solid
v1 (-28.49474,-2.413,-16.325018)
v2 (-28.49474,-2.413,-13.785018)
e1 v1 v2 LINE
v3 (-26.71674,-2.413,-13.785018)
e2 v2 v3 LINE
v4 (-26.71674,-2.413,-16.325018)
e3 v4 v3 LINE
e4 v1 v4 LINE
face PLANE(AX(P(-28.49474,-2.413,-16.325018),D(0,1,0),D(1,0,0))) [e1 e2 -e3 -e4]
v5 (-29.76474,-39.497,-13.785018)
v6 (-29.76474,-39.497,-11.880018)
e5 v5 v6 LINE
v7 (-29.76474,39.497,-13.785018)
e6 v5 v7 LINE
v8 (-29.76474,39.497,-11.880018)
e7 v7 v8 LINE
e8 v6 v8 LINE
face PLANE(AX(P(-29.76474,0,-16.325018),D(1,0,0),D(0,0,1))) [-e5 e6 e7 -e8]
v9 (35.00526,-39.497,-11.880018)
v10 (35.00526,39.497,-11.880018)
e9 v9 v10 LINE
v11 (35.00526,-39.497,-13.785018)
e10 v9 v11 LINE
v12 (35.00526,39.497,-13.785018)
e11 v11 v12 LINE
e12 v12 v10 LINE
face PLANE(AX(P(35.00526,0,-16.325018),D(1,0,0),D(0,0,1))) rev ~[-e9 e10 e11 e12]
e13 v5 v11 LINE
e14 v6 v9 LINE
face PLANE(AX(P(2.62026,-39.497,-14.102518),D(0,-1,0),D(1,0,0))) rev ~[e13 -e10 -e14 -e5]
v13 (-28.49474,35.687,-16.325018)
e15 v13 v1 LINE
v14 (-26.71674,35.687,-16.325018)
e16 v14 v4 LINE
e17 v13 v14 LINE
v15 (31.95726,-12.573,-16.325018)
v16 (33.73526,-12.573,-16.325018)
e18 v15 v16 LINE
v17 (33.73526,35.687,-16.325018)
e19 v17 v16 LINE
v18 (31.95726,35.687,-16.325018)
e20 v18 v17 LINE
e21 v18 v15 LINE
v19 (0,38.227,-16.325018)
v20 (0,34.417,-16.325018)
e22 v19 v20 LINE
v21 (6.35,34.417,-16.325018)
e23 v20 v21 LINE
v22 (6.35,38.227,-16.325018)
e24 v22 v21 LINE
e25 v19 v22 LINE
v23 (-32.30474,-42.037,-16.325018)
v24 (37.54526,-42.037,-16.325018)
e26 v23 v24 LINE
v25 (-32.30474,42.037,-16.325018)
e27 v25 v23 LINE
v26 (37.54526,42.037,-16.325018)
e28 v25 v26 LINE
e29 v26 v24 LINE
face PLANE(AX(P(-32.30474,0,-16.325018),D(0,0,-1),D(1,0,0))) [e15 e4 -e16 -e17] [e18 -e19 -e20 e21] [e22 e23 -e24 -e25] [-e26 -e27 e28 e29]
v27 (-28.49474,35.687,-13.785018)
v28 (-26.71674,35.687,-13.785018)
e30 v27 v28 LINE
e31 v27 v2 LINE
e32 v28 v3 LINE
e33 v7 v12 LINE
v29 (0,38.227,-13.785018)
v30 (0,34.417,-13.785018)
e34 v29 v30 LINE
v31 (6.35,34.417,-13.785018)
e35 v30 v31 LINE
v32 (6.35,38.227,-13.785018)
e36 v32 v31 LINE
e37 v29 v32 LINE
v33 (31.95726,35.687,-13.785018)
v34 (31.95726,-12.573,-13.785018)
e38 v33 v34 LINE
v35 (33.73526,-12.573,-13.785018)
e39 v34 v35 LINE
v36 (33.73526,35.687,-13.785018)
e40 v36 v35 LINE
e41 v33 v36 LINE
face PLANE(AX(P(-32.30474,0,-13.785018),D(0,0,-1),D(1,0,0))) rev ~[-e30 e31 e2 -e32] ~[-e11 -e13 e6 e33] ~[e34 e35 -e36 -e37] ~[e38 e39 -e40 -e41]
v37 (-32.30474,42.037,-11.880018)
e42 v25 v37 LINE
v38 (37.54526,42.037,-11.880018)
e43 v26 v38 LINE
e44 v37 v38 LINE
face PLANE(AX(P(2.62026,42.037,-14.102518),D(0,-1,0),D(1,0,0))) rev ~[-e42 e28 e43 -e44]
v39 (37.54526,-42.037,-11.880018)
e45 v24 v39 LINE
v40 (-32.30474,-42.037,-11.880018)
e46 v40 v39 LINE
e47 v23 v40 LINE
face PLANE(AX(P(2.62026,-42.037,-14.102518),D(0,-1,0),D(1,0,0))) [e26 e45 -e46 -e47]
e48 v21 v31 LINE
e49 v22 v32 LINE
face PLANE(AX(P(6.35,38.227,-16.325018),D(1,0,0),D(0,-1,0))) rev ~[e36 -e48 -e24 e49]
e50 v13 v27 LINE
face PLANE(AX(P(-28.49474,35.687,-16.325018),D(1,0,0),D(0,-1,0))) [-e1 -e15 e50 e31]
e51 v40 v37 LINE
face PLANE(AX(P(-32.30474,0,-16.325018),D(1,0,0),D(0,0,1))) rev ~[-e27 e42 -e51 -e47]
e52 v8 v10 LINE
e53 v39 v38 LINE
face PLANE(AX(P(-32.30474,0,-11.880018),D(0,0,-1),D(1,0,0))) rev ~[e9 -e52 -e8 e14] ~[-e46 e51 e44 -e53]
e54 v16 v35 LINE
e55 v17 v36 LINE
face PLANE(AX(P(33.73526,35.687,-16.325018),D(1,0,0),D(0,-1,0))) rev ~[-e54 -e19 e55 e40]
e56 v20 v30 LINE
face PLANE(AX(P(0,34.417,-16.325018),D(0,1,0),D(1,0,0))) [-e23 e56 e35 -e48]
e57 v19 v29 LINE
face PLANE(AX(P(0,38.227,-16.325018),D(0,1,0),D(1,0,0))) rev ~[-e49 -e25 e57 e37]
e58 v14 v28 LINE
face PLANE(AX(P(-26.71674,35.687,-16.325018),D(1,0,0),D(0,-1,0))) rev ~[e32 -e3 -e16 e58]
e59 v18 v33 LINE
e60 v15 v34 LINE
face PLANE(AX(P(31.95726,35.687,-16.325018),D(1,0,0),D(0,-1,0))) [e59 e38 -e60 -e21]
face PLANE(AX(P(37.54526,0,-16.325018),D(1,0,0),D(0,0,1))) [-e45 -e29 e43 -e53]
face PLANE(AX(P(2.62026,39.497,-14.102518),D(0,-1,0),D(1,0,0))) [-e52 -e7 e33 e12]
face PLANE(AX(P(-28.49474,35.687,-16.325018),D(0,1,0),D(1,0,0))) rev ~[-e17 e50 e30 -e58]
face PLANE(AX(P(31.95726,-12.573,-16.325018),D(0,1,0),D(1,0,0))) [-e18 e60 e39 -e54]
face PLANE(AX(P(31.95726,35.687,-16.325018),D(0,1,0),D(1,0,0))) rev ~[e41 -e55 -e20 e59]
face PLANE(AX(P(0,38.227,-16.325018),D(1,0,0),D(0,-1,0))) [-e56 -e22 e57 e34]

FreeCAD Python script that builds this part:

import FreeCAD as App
import Part
import Sketcher
Q = App.Units.Quantity


def faces_at(feature, points):
    """Names of the faces that lie closest to the given points."""
    faces = feature.Shape.Faces
    near = lambda p: min(range(len(faces)), key=lambda i: faces[i].distToShape(Part.Vertex(*p))[0])
    return sorted({f"Face{near(p) + 1}" for p in points})


def add_polygon(sketch, points):
    """Adds a closed chain of lines whose ends are joined by coincident constraints."""
    first, n = sketch.GeometryCount, len(points)
    for a, b in zip(points, points[1:] + points[:1]):
        sketch.addGeometry(Part.LineSegment(App.Vector(*a, 0), App.Vector(*b, 0)), False)
    for i in range(n):
        sketch.addConstraint(Sketcher.Constraint("Coincident", first + i, 2, first + (i + 1) % n, 1))

doc = App.newDocument("Part")
body = doc.addObject("PartDesign::Body", "Body")

sketch1 = body.newObject("Sketcher::SketchObject", "Sketch")
sketch1.AttachmentSupport = (doc.getObject("XZ_Plane"), [""])
sketch1.MapMode = "FlatFace"
add_polygon(sketch1, [(-32.3, -11.9), (-32.3, -16.3), (37.5, -16.3), (37.5, -11.9)])
sketch1.addConstraint([
    Sketcher.Constraint("Vertical", 0),
    Sketcher.Constraint("Horizontal", 1),
    Sketcher.Constraint("Vertical", 2),
    Sketcher.Constraint("Horizontal", 3),
    Sketcher.Constraint("DistanceX", 1, 1, 1, 2, Q("2.75 in")),
    Sketcher.Constraint("DistanceY", 0, 2, 0, 1, Q("0.175 in")),
    Sketcher.Constraint("DistanceX", 0, 2, -1, 1, 32.30474),
    Sketcher.Constraint("DistanceY", 0, 2, -1, 1, 16.325018),
])
pad1 = body.newObject("PartDesign::Pad", "Pad")
pad1.Profile = sketch1
pad1.Length = Q("3.31 in")
pad1.Midplane = True
doc.recompute()

thickness = body.newObject("PartDesign::Thickness", "Thickness")
thickness.Base = (pad1, faces_at(pad1, [(2.62, 0, -11.88)]))
thickness.Value = Q("0.1 in")
thickness.Reversed = True
thickness.Join = "Arc"

sketch2 = body.newObject("Sketcher::SketchObject", "Sketch001")
sketch2.AttachmentSupport = (doc.getObject("XY_Plane"), [""])
sketch2.MapMode = "FlatFace"
sketch2.AttachmentOffset = App.Placement(App.Vector(0, 0, -16.325018), App.Rotation())
add_polygon(sketch2, [(-28.5, -2.4), (-28.5, 35.7), (-26.7, 35.7), (-26.7, -2.4)])
add_polygon(sketch2, [(0, 34.4), (0, 38.2), (6.3, 38.2), (6.3, 34.4)])
add_polygon(sketch2, [(32, -12.6), (32, 35.7), (33.7, 35.7), (33.7, -12.6)])
sketch2.addConstraint([
    Sketcher.Constraint("Vertical", 0),
    Sketcher.Constraint("Horizontal", 1),
    Sketcher.Constraint("Vertical", 2),
    Sketcher.Constraint("Horizontal", 3),
    Sketcher.Constraint("Vertical", 4),
    Sketcher.Constraint("Horizontal", 5),
    Sketcher.Constraint("Vertical", 6),
    Sketcher.Constraint("Horizontal", 7),
    Sketcher.Constraint("Vertical", 8),
    Sketcher.Constraint("Horizontal", 9),
    Sketcher.Constraint("Vertical", 10),
    Sketcher.Constraint("Horizontal", 11),
    Sketcher.Constraint("PointOnObject", 4, 2, -2),
    Sketcher.Constraint("Horizontal", 1, 2, 8, 2),
    Sketcher.Constraint("Equal", 3, 9),
    Sketcher.Constraint("DistanceY", 0, 1, 0, 2, Q("1.5 in")),
    Sketcher.Constraint("DistanceY", 8, 1, 8, 2, Q("1.9 in")),
    Sketcher.Constraint("DistanceY", 10, 2, 5, 2, Q("2 in")),
    Sketcher.Constraint("DistanceX", 1, 1, 1, 2, Q("0.07 in")),
    Sketcher.Constraint("DistanceX", 5, 1, 5, 2, Q("0.25 in")),
    Sketcher.Constraint("DistanceY", 4, 1, 4, 2, Q("0.15 in")),
    Sketcher.Constraint("DistanceX", 1, 2, 8, 2, Q("2.31 in")),
    Sketcher.Constraint("DistanceY", -1, 1, 0, 2, Q("1.405 in")),
    Sketcher.Constraint("DistanceX", 0, 2, -1, 1, 28.49474),
])
pocket1 = body.newObject("PartDesign::Pocket", "Pocket")
pocket1.Profile = sketch2
pocket1.Length = Q("1 in")
pocket1.Reversed = True

doc.recompute()
